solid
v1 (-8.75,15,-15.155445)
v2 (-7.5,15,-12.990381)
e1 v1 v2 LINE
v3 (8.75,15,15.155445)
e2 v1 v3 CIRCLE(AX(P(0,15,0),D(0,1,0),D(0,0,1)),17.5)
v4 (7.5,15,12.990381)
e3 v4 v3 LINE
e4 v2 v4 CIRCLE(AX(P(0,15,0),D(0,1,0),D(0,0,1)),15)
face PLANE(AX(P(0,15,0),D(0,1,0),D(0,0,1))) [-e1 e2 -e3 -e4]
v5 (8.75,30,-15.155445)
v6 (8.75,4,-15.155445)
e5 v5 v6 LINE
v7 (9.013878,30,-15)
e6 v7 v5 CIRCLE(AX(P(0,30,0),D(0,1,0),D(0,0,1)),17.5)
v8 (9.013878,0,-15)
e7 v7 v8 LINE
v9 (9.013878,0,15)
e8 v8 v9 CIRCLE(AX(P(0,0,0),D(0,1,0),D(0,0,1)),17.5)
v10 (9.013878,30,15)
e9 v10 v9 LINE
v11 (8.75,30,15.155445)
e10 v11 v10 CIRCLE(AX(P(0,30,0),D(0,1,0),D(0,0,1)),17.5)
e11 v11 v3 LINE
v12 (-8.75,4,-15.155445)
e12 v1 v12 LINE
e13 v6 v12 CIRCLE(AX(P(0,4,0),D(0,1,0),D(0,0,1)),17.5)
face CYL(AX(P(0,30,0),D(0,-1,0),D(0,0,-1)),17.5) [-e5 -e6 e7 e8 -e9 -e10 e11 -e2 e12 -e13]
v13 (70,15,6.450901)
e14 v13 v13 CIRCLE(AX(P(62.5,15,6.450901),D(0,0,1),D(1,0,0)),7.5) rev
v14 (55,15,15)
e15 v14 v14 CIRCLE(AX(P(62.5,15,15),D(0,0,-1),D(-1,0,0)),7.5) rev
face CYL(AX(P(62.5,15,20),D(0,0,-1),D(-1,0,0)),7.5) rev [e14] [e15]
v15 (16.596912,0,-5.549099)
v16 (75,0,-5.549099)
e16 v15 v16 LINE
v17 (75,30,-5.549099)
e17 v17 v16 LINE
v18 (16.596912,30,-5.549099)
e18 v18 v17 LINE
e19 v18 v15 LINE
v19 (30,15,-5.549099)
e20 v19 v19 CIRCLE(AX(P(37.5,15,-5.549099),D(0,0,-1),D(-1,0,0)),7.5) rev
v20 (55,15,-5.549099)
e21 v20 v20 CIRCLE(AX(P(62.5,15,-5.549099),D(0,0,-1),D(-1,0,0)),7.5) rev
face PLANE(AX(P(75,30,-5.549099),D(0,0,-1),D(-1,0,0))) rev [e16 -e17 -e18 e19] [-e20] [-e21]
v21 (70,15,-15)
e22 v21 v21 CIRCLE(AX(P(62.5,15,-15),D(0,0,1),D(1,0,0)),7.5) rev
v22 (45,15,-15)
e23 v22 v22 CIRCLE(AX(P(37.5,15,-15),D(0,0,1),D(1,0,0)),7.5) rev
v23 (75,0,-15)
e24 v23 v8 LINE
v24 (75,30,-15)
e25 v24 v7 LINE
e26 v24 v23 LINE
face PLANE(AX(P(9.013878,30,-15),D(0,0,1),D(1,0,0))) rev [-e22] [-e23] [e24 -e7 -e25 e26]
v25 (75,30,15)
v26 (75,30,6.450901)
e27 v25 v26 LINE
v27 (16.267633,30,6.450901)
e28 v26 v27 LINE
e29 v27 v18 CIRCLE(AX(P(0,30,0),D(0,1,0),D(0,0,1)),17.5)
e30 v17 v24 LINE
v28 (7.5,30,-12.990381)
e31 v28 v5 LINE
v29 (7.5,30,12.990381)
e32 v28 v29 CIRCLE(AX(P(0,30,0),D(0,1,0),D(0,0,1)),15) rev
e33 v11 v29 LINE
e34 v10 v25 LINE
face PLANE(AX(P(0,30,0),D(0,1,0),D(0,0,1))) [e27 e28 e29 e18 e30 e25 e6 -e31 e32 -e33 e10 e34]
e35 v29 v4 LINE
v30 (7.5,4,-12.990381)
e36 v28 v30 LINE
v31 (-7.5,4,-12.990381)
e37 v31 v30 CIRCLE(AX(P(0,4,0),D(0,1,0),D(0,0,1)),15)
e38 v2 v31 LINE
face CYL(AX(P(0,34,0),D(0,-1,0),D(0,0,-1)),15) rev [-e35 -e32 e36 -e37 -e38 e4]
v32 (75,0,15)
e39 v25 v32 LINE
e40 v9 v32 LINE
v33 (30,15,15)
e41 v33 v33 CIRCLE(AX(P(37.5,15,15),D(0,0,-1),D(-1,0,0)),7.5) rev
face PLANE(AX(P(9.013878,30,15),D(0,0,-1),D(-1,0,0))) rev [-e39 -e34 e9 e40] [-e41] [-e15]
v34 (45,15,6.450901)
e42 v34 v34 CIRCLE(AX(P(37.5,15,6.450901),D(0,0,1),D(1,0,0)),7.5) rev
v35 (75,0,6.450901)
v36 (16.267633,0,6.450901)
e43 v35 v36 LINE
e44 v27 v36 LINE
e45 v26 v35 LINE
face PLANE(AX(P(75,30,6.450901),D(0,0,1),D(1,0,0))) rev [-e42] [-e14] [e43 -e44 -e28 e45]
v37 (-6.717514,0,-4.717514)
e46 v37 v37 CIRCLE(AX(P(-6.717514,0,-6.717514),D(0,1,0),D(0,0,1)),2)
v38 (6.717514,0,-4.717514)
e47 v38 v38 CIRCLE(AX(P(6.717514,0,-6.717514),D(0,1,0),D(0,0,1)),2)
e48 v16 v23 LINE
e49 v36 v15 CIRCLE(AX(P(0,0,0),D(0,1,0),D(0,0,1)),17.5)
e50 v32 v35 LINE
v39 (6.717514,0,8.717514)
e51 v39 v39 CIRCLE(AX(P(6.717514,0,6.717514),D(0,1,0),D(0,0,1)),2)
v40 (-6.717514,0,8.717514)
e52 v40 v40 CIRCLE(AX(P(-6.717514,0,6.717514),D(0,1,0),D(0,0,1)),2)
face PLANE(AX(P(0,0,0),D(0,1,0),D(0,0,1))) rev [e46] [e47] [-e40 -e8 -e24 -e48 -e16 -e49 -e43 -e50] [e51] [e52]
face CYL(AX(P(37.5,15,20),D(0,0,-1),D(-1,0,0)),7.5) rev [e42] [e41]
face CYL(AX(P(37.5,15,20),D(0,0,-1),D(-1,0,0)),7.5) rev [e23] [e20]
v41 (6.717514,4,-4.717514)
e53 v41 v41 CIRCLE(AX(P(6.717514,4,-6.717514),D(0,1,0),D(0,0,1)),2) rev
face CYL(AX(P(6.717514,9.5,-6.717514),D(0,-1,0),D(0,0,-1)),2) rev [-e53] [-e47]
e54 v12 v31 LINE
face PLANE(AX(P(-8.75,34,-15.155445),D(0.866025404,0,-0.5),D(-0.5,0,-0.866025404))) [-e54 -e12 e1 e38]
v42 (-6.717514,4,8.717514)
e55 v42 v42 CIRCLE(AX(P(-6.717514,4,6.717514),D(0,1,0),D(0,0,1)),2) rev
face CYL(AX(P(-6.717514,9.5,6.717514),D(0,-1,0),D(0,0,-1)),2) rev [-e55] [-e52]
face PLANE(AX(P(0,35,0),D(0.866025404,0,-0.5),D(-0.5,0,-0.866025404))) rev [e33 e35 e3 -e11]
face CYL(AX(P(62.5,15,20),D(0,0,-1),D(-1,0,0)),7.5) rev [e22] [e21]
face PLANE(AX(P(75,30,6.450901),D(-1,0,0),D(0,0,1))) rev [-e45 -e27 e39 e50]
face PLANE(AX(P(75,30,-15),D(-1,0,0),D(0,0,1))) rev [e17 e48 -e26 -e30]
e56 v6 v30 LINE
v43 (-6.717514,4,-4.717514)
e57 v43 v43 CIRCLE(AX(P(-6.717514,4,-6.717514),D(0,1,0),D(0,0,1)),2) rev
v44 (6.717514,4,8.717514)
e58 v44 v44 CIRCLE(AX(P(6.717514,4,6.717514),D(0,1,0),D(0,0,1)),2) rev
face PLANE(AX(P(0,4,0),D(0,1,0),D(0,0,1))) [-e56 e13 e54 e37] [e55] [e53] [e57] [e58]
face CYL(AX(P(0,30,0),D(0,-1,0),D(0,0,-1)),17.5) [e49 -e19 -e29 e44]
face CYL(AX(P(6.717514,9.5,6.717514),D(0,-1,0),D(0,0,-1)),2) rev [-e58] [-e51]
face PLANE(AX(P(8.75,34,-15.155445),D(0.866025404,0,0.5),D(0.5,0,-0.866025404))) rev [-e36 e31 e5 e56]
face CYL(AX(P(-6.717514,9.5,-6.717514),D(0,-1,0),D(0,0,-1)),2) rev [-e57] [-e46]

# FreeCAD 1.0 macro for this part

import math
import FreeCAD as App
import Part
import Sketcher
from FreeCAD import Vector
Q = App.Units.Quantity

doc = App.newDocument("Part")
body = doc.addObject("PartDesign::Body", "Body")

sketch1 = body.newObject("Sketcher::SketchObject", "Sketch")
sketch1.AttachmentSupport = (doc.getObject("XZ_Plane"), [""])
sketch1.MapMode = "FlatFace"
sketch1.addGeometry([
    Part.LineSegment(Vector(75, -15, 0), Vector(9, -15, 0)),
    Part.ArcOfCircle(Part.Circle(Vector(0, 0, 0), Vector(0, 0, 1), 18), math.radians(59), math.radians(301)),
    Part.LineSegment(Vector(9, 15, 0), Vector(75, 15, 0)),
    Part.LineSegment(Vector(75, 15, 0), Vector(75, 6, 0)),
    Part.LineSegment(Vector(75, 6, 0), Vector(16, 6, 0)),
    Part.ArcOfCircle(Part.Circle(Vector(0, 0, 0), Vector(0, 0, 1), 18), math.radians(-18), math.radians(22)),
    Part.LineSegment(Vector(17, -6, 0), Vector(75, -6, 0)),
    Part.LineSegment(Vector(75, -6, 0), Vector(75, -15, 0)),
], False)
sketch1.addConstraint([
    Sketcher.Constraint("Coincident", 0, 2, 1, 2),
    Sketcher.Constraint("Coincident", 1, 1, 2, 1),
    Sketcher.Constraint("Coincident", 2, 2, 3, 1),
    Sketcher.Constraint("Coincident", 3, 2, 4, 1),
    Sketcher.Constraint("Coincident", 4, 2, 5, 2),
    Sketcher.Constraint("Coincident", 5, 1, 6, 1),
    Sketcher.Constraint("Coincident", 6, 2, 7, 1),
    Sketcher.Constraint("Coincident", 7, 2, 0, 1),
    Sketcher.Constraint("Horizontal", 0),
    Sketcher.Constraint("Horizontal", 2),
    Sketcher.Constraint("Vertical", 3),
    Sketcher.Constraint("Horizontal", 4),
    Sketcher.Constraint("Horizontal", 6),
    Sketcher.Constraint("Vertical", 7),
    Sketcher.Constraint("Coincident", 1, 3, -1, 1),
    Sketcher.Constraint("Coincident", 5, 3, -1, 1),
    Sketcher.Constraint("Equal", 1, 5),
    Sketcher.Constraint("Symmetric", 2, 2, 7, 2, -1),
    Sketcher.Constraint("Radius", 1, 17.5),
    Sketcher.Constraint("DistanceY", 0, 2, -1, 1, 15.0),
    Sketcher.Constraint("DistanceX", -1, 1, 2, 2, 75.0),
    Sketcher.Constraint("DistanceY", 5, 1, 4, 2, 12.0),
    Sketcher.Constraint("DistanceY", 3, 2, 3, 1, 8.549099),
])
pad1 = body.newObject("PartDesign::Pad", "Pad")
pad1.Profile = sketch1
pad1.Length = 30
pad1.Reversed = True

sketch2 = body.newObject("Sketcher::SketchObject", "Sketch001")
sketch2.AttachmentSupport = (doc.getObject("XZ_Plane"), [""])
sketch2.MapMode = "FlatFace"
sketch2.AttachmentOffset = App.Placement(Vector(0, 0, -4), App.Rotation())
sketch2.addGeometry([
    Part.LineSegment(Vector(7.5, -13, 0), Vector(8.8, -15.2, 0)),
    Part.ArcOfCircle(Part.Circle(Vector(0, 0, 0), Vector(0, 0, 1), 17.5), math.radians(-90), math.radians(-60)),
    Part.ArcOfCircle(Part.Circle(Vector(0, 0, 0), Vector(0, 0, 1), 17.5), math.radians(-120), math.radians(-90)),
    Part.LineSegment(Vector(-8.8, -15.2, 0), Vector(-7.5, -13, 0)),
    Part.ArcOfCircle(Part.Circle(Vector(0, 0, 0), Vector(0, 0, 1), 15), math.radians(-60), math.radians(240)),
], False)
sketch2.addConstraint([
    Sketcher.Constraint("Coincident", 0, 2, 1, 2),
    Sketcher.Constraint("Tangent", 1, 1, 2, 2),
    Sketcher.Constraint("Coincident", 2, 1, 3, 1),
    Sketcher.Constraint("Coincident", 3, 2, 4, 2),
    Sketcher.Constraint("Coincident", 4, 1, 0, 1),
    Sketcher.Constraint("Coincident", 1, 3, -1, 1),
    Sketcher.Constraint("Coincident", 4, 3, -1, 1),
    Sketcher.Constraint("Equal", 1, 2),
    Sketcher.Constraint("PointOnObject", 1, 1, -2),
    Sketcher.Constraint("Horizontal", 0, 2, 2, 1),
    Sketcher.Constraint("Horizontal", 3, 2, 4, 1),
    Sketcher.Constraint("Radius", 4, 15.0),
    Sketcher.Constraint("Radius", 1, 17.5),
    Sketcher.Constraint("Angle", 0, Q("-60 deg")),
    Sketcher.Constraint("DistanceX", 3, 2, 4, 1, 15.0),
])
pocket1 = body.newObject("PartDesign::Pocket", "Pocket")
pocket1.Profile = sketch2
pocket1.Length = 30

sketch3 = body.newObject("Sketcher::SketchObject", "Sketch002")
sketch3.AttachmentSupport = (doc.getObject("XZ_Plane"), [""])
sketch3.MapMode = "FlatFace"
sketch3.addGeometry([
    Part.Circle(Vector(6.7, -6.7, 0), Vector(0, 0, 1), 2),
    Part.Circle(Vector(6.7, 6.7, 0), Vector(0, 0, 1), 2),
    Part.Circle(Vector(-6.7, 6.7, 0), Vector(0, 0, 1), 2),
    Part.Circle(Vector(-6.7, -6.7, 0), Vector(0, 0, 1), 2),
], False)
sketch3.addConstraint([
    Sketcher.Constraint("Equal", 0, 1),
    Sketcher.Constraint("Equal", 1, 2),
    Sketcher.Constraint("Equal", 2, 3),
    Sketcher.Constraint("Symmetric", 0, 3, 2, 3, -1, 1),
    Sketcher.Constraint("Symmetric", 1, 3, 3, 3, -1, 1),
    Sketcher.Constraint("Symmetric", 1, 3, 2, 3, -2),
    Sketcher.Constraint("Diameter", 0, 4.0),
    Sketcher.Constraint("DistanceY", 0, 3, 1, 3, 13.435029),
    Sketcher.Constraint("DistanceX", 2, 3, 1, 3, 13.435029),
])
pocket2 = body.newObject("PartDesign::Pocket", "Pocket001")
pocket2.Profile = sketch3
pocket2.Length = 9.5

sketch4 = body.newObject("Sketcher::SketchObject", "Sketch003")
sketch4.AttachmentSupport = (doc.getObject("XZ_Plane"), [""])
sketch4.MapMode = "FlatFace"
sketch4.AttachmentOffset = App.Placement(Vector(0, 0, -15), App.Rotation())
sketch4.addGeometry([
    Part.LineSegment(Vector(9, 15, 0), Vector(0, 0, 0)),
    Part.LineSegment(Vector(0, 0, 0), Vector(9, -15, 0)),
    Part.ArcOfCircle(Part.Circle(Vector(0, 0, 0), Vector(0, 0, 1), 18), math.radians(60), math.radians(300)),
], False)
sketch4.addConstraint([
    Sketcher.Constraint("Coincident", 0, 2, 1, 1),
    Sketcher.Constraint("Coincident", 1, 2, 2, 2),
    Sketcher.Constraint("Coincident", 2, 1, 0, 1),
    Sketcher.Constraint("Coincident", 2, 3, -1, 1),
    Sketcher.Constraint("Coincident", 0, 2, -1, 1),
    Sketcher.Constraint("Vertical", 1, 2, 2, 1),
    Sketcher.Constraint("Radius", 2, 17.5),
    Sketcher.Constraint("Angle", 0, Q("-120 deg")),
])
pocket3 = body.newObject("PartDesign::Pocket", "Pocket002")
pocket3.Profile = sketch4
pocket3.Length = 20

sketch5 = body.newObject("Sketcher::SketchObject", "Sketch004")
sketch5.AttachmentSupport = (doc.getObject("XY_Plane"), [""])
sketch5.MapMode = "FlatFace"
sketch5.addGeometry([
    Part.Circle(Vector(62, 15, 0), Vector(0, 0, 1), 8),
    Part.Circle(Vector(38, 15, 0), Vector(0, 0, 1), 8),
], False)
sketch5.addConstraint([
    Sketcher.Constraint("Equal", 0, 1),
    Sketcher.Constraint("Horizontal", 0, 3, 1, 3),
    Sketcher.Constraint("Diameter", 0, 15.0),
    Sketcher.Constraint("DistanceY", -1, 1, 0, 3, 15.0),
    Sketcher.Constraint("DistanceX", 1, 3, 0, 3, 25.0),
    Sketcher.Constraint("DistanceX", -1, 1, 0, 3, 62.5),
])
pocket4 = body.newObject("PartDesign::Pocket", "Pocket003")
pocket4.Profile = sketch5
pocket4.Type = "ThroughAll"
pocket4.Midplane = True

doc.recompute()
